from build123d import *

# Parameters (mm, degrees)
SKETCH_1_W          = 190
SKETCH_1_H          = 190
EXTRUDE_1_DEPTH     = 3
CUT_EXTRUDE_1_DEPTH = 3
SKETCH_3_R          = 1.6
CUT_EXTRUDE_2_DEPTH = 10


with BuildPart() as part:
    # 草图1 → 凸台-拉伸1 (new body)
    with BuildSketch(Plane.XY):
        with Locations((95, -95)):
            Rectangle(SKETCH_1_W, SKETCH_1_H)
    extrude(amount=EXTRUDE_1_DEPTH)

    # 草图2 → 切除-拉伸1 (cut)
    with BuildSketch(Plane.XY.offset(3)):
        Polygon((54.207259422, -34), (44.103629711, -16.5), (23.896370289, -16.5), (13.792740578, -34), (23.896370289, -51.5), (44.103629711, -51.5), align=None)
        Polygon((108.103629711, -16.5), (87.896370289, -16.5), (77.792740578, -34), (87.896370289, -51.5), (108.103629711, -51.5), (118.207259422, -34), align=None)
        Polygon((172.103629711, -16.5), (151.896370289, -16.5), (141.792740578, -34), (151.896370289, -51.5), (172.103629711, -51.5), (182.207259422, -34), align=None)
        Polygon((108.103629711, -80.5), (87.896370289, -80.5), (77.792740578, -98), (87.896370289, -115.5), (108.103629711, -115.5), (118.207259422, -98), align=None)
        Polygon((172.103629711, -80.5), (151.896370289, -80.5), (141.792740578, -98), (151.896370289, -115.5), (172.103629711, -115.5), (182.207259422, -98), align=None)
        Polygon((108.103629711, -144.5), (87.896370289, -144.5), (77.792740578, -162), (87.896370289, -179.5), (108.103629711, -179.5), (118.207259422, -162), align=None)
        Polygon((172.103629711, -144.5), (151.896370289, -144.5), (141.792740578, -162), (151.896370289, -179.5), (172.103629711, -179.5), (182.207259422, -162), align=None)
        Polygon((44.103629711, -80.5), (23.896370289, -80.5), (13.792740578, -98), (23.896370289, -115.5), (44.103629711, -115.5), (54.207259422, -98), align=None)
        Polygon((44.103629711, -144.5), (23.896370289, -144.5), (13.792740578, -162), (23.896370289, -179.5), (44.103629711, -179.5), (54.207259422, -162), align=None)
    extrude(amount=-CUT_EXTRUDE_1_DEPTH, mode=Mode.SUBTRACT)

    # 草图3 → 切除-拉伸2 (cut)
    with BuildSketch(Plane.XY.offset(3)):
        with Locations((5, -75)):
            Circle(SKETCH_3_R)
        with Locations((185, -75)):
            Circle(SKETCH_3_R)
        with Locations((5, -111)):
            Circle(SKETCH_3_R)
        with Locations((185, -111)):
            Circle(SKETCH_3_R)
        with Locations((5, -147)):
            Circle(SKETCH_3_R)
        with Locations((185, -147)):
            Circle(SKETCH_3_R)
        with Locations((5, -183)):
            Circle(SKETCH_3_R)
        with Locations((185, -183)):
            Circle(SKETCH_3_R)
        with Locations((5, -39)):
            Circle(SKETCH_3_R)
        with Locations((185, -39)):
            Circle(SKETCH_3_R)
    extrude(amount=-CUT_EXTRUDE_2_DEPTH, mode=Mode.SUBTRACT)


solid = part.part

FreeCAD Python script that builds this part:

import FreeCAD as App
import Part
import Sketcher

V = App.Vector
Q = App.Units.Quantity

doc = App.newDocument("Part")
body = doc.addObject("PartDesign::Body", "Body")

# Sketch on XY plane
sketch1 = doc.addObject("Sketcher::SketchObject", "Sketch")
body.addObject(sketch1)
sketch1.AttachmentSupport = (doc.XY_Plane, [""])
sketch1.MapMode = "FlatFace"
sketch1.addGeometry([
    Part.LineSegment(V(0, 0, 0), V(0, -190, 0)),
    Part.LineSegment(V(0, -190, 0), V(190, -190, 0)),
    Part.LineSegment(V(190, -190, 0), V(190, 0, 0)),
    Part.LineSegment(V(190, 0, 0), V(0, 0, 0)),
], False)
sketch1.addConstraint([
    Sketcher.Constraint("Coincident", 0, 2, 1, 1),
    Sketcher.Constraint("Coincident", 1, 2, 2, 1),
    Sketcher.Constraint("Coincident", 2, 2, 3, 1),
    Sketcher.Constraint("Coincident", 3, 2, 0, 1),
    Sketcher.Constraint("Vertical", 0),
    Sketcher.Constraint("Horizontal", 1),
    Sketcher.Constraint("Vertical", 2),
    Sketcher.Constraint("Horizontal", 3),
    Sketcher.Constraint("Coincident", 3, 2, -1, 1),
    Sketcher.Constraint("Equal", 3, 0),
    Sketcher.Constraint("DistanceX", 1, 1, 1, 2, 190.0),
])
pad1 = doc.addObject("PartDesign::Pad", "Pad")
body.addObject(pad1)
pad1.Profile = sketch1
pad1.Length = 3

# Sketch on XY plane
sketch2 = doc.addObject("Sketcher::SketchObject", "Sketch001")
body.addObject(sketch2)
sketch2.AttachmentSupport = (doc.XY_Plane, [""])
sketch2.MapMode = "FlatFace"
sketch2.AttachmentOffset = App.Placement(V(0, 0, 3), App.Rotation())
sketch2.addGeometry([
    Part.LineSegment(V(54, -34, 0), V(44, -16, 0)),  # 0
    Part.LineSegment(V(44, -16, 0), V(24, -16, 0)),  # 1
    Part.LineSegment(V(24, -16, 0), V(14, -34, 0)),  # 2
    Part.LineSegment(V(14, -34, 0), V(24, -52, 0)),  # 3
    Part.LineSegment(V(24, -52, 0), V(44, -52, 0)),  # 4
    Part.LineSegment(V(44, -52, 0), V(54, -34, 0)),  # 5
    Part.LineSegment(V(108, -16, 0), V(88, -16, 0)),  # 6
    Part.LineSegment(V(88, -16, 0), V(78, -34, 0)),  # 7
    Part.LineSegment(V(78, -34, 0), V(88, -52, 0)),  # 8
    Part.LineSegment(V(88, -52, 0), V(108, -52, 0)),  # 9
    Part.LineSegment(V(108, -52, 0), V(118, -34, 0)),  # 10
    Part.LineSegment(V(118, -34, 0), V(108, -16, 0)),  # 11
    Part.LineSegment(V(172, -16, 0), V(152, -16, 0)),  # 12
    Part.LineSegment(V(152, -16, 0), V(142, -34, 0)),  # 13
    Part.LineSegment(V(142, -34, 0), V(152, -52, 0)),  # 14
    Part.LineSegment(V(152, -52, 0), V(172, -52, 0)),  # 15
    Part.LineSegment(V(172, -52, 0), V(182, -34, 0)),  # 16
    Part.LineSegment(V(182, -34, 0), V(172, -16, 0)),  # 17
    Part.LineSegment(V(108, -80, 0), V(88, -80, 0)),  # 18
    Part.LineSegment(V(88, -80, 0), V(78, -98, 0)),  # 19
    Part.LineSegment(V(78, -98, 0), V(88, -116, 0)),  # 20
    Part.LineSegment(V(88, -116, 0), V(108, -116, 0)),  # 21
    Part.LineSegment(V(108, -116, 0), V(118, -98, 0)),  # 22
    Part.LineSegment(V(118, -98, 0), V(108, -80, 0)),  # 23
    Part.LineSegment(V(172, -80, 0), V(152, -80, 0)),  # 24
    Part.LineSegment(V(152, -80, 0), V(142, -98, 0)),  # 25
    Part.LineSegment(V(142, -98, 0), V(152, -116, 0)),  # 26
    Part.LineSegment(V(152, -116, 0), V(172, -116, 0)),  # 27
    Part.LineSegment(V(172, -116, 0), V(182, -98, 0)),  # 28
    Part.LineSegment(V(182, -98, 0), V(172, -80, 0)),  # 29
    Part.LineSegment(V(108, -144, 0), V(88, -144, 0)),  # 30
    Part.LineSegment(V(88, -144, 0), V(78, -162, 0)),  # 31
    Part.LineSegment(V(78, -162, 0), V(88, -180, 0)),  # 32
    Part.LineSegment(V(88, -180, 0), V(108, -180, 0)),  # 33
    Part.LineSegment(V(108, -180, 0), V(118, -162, 0)),  # 34
    Part.LineSegment(V(118, -162, 0), V(108, -144, 0)),  # 35
    Part.LineSegment(V(172, -144, 0), V(152, -144, 0)),  # 36
    Part.LineSegment(V(152, -144, 0), V(142, -162, 0)),  # 37
    Part.LineSegment(V(142, -162, 0), V(152, -180, 0)),  # 38
    Part.LineSegment(V(152, -180, 0), V(172, -180, 0)),  # 39
    Part.LineSegment(V(172, -180, 0), V(182, -162, 0)),  # 40
    Part.LineSegment(V(182, -162, 0), V(172, -144, 0)),  # 41
    Part.LineSegment(V(44, -80, 0), V(24, -80, 0)),  # 42
    Part.LineSegment(V(24, -80, 0), V(14, -98, 0)),  # 43
    Part.LineSegment(V(14, -98, 0), V(24, -116, 0)),  # 44
    Part.LineSegment(V(24, -116, 0), V(44, -116, 0)),  # 45
    Part.LineSegment(V(44, -116, 0), V(54, -98, 0)),  # 46
    Part.LineSegment(V(54, -98, 0), V(44, -80, 0)),  # 47
    Part.LineSegment(V(44, -144, 0), V(24, -144, 0)),  # 48
    Part.LineSegment(V(24, -144, 0), V(14, -162, 0)),  # 49
    Part.LineSegment(V(14, -162, 0), V(24, -180, 0)),  # 50
    Part.LineSegment(V(24, -180, 0), V(44, -180, 0)),  # 51
    Part.LineSegment(V(44, -180, 0), V(54, -162, 0)),  # 52
    Part.LineSegment(V(54, -162, 0), V(44, -144, 0)),  # 53
], False)
sketch2.addConstraint([
    Sketcher.Constraint("Coincident", 0, 2, 1, 1),
    Sketcher.Constraint("Coincident", 1, 2, 2, 1),
    Sketcher.Constraint("Coincident", 2, 2, 3, 1),
    Sketcher.Constraint("Coincident", 3, 2, 4, 1),
    Sketcher.Constraint("Coincident", 4, 2, 5, 1),
    Sketcher.Constraint("Coincident", 5, 2, 0, 1),
    Sketcher.Constraint("Coincident", 6, 2, 7, 1),
    Sketcher.Constraint("Coincident", 7, 2, 8, 1),
    Sketcher.Constraint("Coincident", 8, 2, 9, 1),
    Sketcher.Constraint("Coincident", 9, 2, 10, 1),
    Sketcher.Constraint("Coincident", 10, 2, 11, 1),
    Sketcher.Constraint("Coincident", 11, 2, 6, 1),
    Sketcher.Constraint("Coincident", 12, 2, 13, 1),
    Sketcher.Constraint("Coincident", 13, 2, 14, 1),
    Sketcher.Constraint("Coincident", 14, 2, 15, 1),
    Sketcher.Constraint("Coincident", 15, 2, 16, 1),
    Sketcher.Constraint("Coincident", 16, 2, 17, 1),
    Sketcher.Constraint("Coincident", 17, 2, 12, 1),
    Sketcher.Constraint("Coincident", 18, 2, 19, 1),
    Sketcher.Constraint("Coincident", 19, 2, 20, 1),
    Sketcher.Constraint("Coincident", 20, 2, 21, 1),
    Sketcher.Constraint("Coincident", 21, 2, 22, 1),
    Sketcher.Constraint("Coincident", 22, 2, 23, 1),
    Sketcher.Constraint("Coincident", 23, 2, 18, 1),
    Sketcher.Constraint("Coincident", 24, 2, 25, 1),
    Sketcher.Constraint("Coincident", 25, 2, 26, 1),
    Sketcher.Constraint("Coincident", 26, 2, 27, 1),
    Sketcher.Constraint("Coincident", 27, 2, 28, 1),
    Sketcher.Constraint("Coincident", 28, 2, 29, 1),
    Sketcher.Constraint("Coincident", 29, 2, 24, 1),
    Sketcher.Constraint("Coincident", 30, 2, 31, 1),
    Sketcher.Constraint("Coincident", 31, 2, 32, 1),
    Sketcher.Constraint("Coincident", 32, 2, 33, 1),
    Sketcher.Constraint("Coincident", 33, 2, 34, 1),
    Sketcher.Constraint("Coincident", 34, 2, 35, 1),
    Sketcher.Constraint("Coincident", 35, 2, 30, 1),
    Sketcher.Constraint("Coincident", 36, 2, 37, 1),
    Sketcher.Constraint("Coincident", 37, 2, 38, 1),
    Sketcher.Constraint("Coincident", 38, 2, 39, 1),
    Sketcher.Constraint("Coincident", 39, 2, 40, 1),
    Sketcher.Constraint("Coincident", 40, 2, 41, 1),
    Sketcher.Constraint("Coincident", 41, 2, 36, 1),
    Sketcher.Constraint("Coincident", 42, 2, 43, 1),
    Sketcher.Constraint("Coincident", 43, 2, 44, 1),
    Sketcher.Constraint("Coincident", 44, 2, 45, 1),
    Sketcher.Constraint("Coincident", 45, 2, 46, 1),
    Sketcher.Constraint("Coincident", 46, 2, 47, 1),
    Sketcher.Constraint("Coincident", 47, 2, 42, 1),
    Sketcher.Constraint("Coincident", 48, 2, 49, 1),
    Sketcher.Constraint("Coincident", 49, 2, 50, 1),
    Sketcher.Constraint("Coincident", 50, 2, 51, 1),
    Sketcher.Constraint("Coincident", 51, 2, 52, 1),
    Sketcher.Constraint("Coincident", 52, 2, 53, 1),
    Sketcher.Constraint("Coincident", 53, 2, 48, 1),
    Sketcher.Constraint("Horizontal", 1),
    Sketcher.Constraint("Horizontal", 4),
    Sketcher.Constraint("Horizontal", 6),
    Sketcher.Constraint("Horizontal", 9),
    Sketcher.Constraint("Horizontal", 12),
    Sketcher.Constraint("Horizontal", 15),
    Sketcher.Constraint("Horizontal", 18),
    Sketcher.Constraint("Horizontal", 21),
    Sketcher.Constraint("Horizontal", 24),
    Sketcher.Constraint("Horizontal", 27),
    Sketcher.Constraint("Horizontal", 30),
    Sketcher.Constraint("Horizontal", 33),
    Sketcher.Constraint("Horizontal", 36),
    Sketcher.Constraint("Horizontal", 39),
    Sketcher.Constraint("Horizontal", 42),
    Sketcher.Constraint("Horizontal", 45),
    Sketcher.Constraint("Horizontal", 48),
    Sketcher.Constraint("Horizontal", 51),
    Sketcher.Constraint("Parallel", 0, 3),
    Sketcher.Constraint("Parallel", 2, 5),
    Sketcher.Constraint("Parallel", 5, 7),
    Sketcher.Constraint("Parallel", 3, 8),
    Sketcher.Constraint("Parallel", 7, 10),
    Sketcher.Constraint("Parallel", 8, 11),
    Sketcher.Constraint("Parallel", 10, 13),
    Sketcher.Constraint("Parallel", 11, 14),
    Sketcher.Constraint("Parallel", 13, 16),
    Sketcher.Constraint("Parallel", 14, 17),
    Sketcher.Constraint("Parallel", 16, 19),
    Sketcher.Constraint("Parallel", 17, 20),
    Sketcher.Constraint("Parallel", 19, 22),
    Sketcher.Constraint("Parallel", 20, 23),
    Sketcher.Constraint("Parallel", 22, 25),
    Sketcher.Constraint("Parallel", 23, 26),
    Sketcher.Constraint("Parallel", 25, 28),
    Sketcher.Constraint("Parallel", 26, 29),
    Sketcher.Constraint("Parallel", 28, 31),
    Sketcher.Constraint("Parallel", 29, 32),
    Sketcher.Constraint("Parallel", 31, 34),
    Sketcher.Constraint("Parallel", 32, 35),
    Sketcher.Constraint("Parallel", 34, 37),
    Sketcher.Constraint("Parallel", 35, 38),
    Sketcher.Constraint("Parallel", 37, 40),
    Sketcher.Constraint("Parallel", 38, 41),
    Sketcher.Constraint("Parallel", 40, 43),
    Sketcher.Constraint("Parallel", 41, 44),
    Sketcher.Constraint("Parallel", 43, 46),
    Sketcher.Constraint("Parallel", 44, 47),
    Sketcher.Constraint("Parallel", 46, 49),
    Sketcher.Constraint("Parallel", 47, 50),
    Sketcher.Constraint("Parallel", 49, 52),
    Sketcher.Constraint("Parallel", 50, 53),
    Sketcher.Constraint("Horizontal", 2, 2, 5, 2),
    Sketcher.Constraint("Horizontal", 1, 2, 6, 2),
    Sketcher.Constraint("Horizontal", 5, 2, 7, 2),
    Sketcher.Constraint("Horizontal", 4, 2, 8, 2),
    Sketcher.Constraint("Horizontal", 7, 2, 10, 2),
    Sketcher.Constraint("Horizontal", 11, 2, 12, 2),
    Sketcher.Constraint("Horizontal", 10, 2, 13, 2),
    Sketcher.Constraint("Horizontal", 9, 2, 14, 2),
    Sketcher.Constraint("Horizontal", 13, 2, 16, 2),
    Sketcher.Constraint("Horizontal", 19, 2, 22, 2),
    Sketcher.Constraint("Horizontal", 23, 2, 24, 2),
    Sketcher.Constraint("Horizontal", 22, 2, 25, 2),
    Sketcher.Constraint("Horizontal", 21, 2, 26, 2),
    Sketcher.Constraint("Horizontal", 25, 2, 28, 2),
    Sketcher.Constraint("Horizontal", 31, 2, 34, 2),
    Sketcher.Constraint("Horizontal", 35, 2, 36, 2),
    Sketcher.Constraint("Horizontal", 34, 2, 37, 2),
    Sketcher.Constraint("Horizontal", 33, 2, 38, 2),
    Sketcher.Constraint("Horizontal", 37, 2, 40, 2),
    Sketcher.Constraint("Horizontal", 29, 2, 42, 2),
    Sketcher.Constraint("Horizontal", 28, 2, 43, 2),
    Sketcher.Constraint("Horizontal", 27, 2, 44, 2),
    Sketcher.Constraint("Horizontal", 43, 2, 46, 2),
    Sketcher.Constraint("Horizontal", 41, 2, 48, 2),
    Sketcher.Constraint("Horizontal", 40, 2, 49, 2),
    Sketcher.Constraint("Horizontal", 39, 2, 50, 2),
    Sketcher.Constraint("Horizontal", 49, 2, 52, 2),
    Sketcher.Constraint("Vertical", 1, 2, 3, 2),
    Sketcher.Constraint("Vertical", 0, 2, 4, 2),
    Sketcher.Constraint("Vertical", 8, 2, 18, 2),
    Sketcher.Constraint("Vertical", 7, 2, 19, 2),
    Sketcher.Constraint("Vertical", 18, 2, 20, 2),
    Sketcher.Constraint("Vertical", 11, 2, 21, 2),
    Sketcher.Constraint("Vertical", 14, 2, 24, 2),
    Sketcher.Constraint("Vertical", 17, 2, 27, 2),
    Sketcher.Constraint("Vertical", 20, 2, 30, 2),
    Sketcher.Constraint("Vertical", 19, 2, 31, 2),
    Sketcher.Constraint("Vertical", 30, 2, 32, 2),
    Sketcher.Constraint("Vertical", 23, 2, 33, 2),
    Sketcher.Constraint("Vertical", 26, 2, 36, 2),
    Sketcher.Constraint("Vertical", 29, 2, 39, 2),
    Sketcher.Constraint("Vertical", 3, 2, 42, 2),
    Sketcher.Constraint("Vertical", 4, 2, 45, 2),
    Sketcher.Constraint("Vertical", 44, 2, 48, 2),
    Sketcher.Constraint("Vertical", 47, 2, 51, 2),
    Sketcher.Constraint("Equal", 4, 6),
    Sketcher.Constraint("Equal", 9, 12),
    Sketcher.Constraint("Angle", 0, Q("120 deg")),
    Sketcher.Constraint("DistanceY", 2, 2, -1, 1, 34.0),
    Sketcher.Constraint("DistanceY", 19, 2, -1, 1, 98.0),
    Sketcher.Constraint("DistanceY", 31, 2, -1, 1, 162.0),
    Sketcher.Constraint("DistanceY", 3, 2, 1, 2, 35.0),
    Sketcher.Constraint("DistanceX", 1, 2, 6, 2, 64.0),
    Sketcher.Constraint("DistanceX", 6, 2, 12, 2, 64.0),
    Sketcher.Constraint("DistanceX", 1, 2, 1, 1, 20.207259),
    Sketcher.Constraint("DistanceX", -1, 1, 0, 2, 44.10363),
])
pocket1 = doc.addObject("PartDesign::Pocket", "Pocket")
body.addObject(pocket1)
pocket1.Profile = sketch2
pocket1.Length = 3

# Sketch on XY plane
sketch3 = doc.addObject("Sketcher::SketchObject", "Sketch002")
body.addObject(sketch3)
sketch3.AttachmentSupport = (doc.XY_Plane, [""])
sketch3.MapMode = "FlatFace"
sketch3.AttachmentOffset = App.Placement(V(0, 0, 3), App.Rotation())
sketch3.addGeometry([
    Part.Circle(V(5, -75, 0), V(0, 0, 1), 1.6),  # 0
    Part.Circle(V(185, -75, 0), V(0, 0, 1), 1.6),  # 1
    Part.Circle(V(5, -111, 0), V(0, 0, 1), 1.6),  # 2
    Part.Circle(V(185, -111, 0), V(0, 0, 1), 1.6),  # 3
    Part.Circle(V(5, -147, 0), V(0, 0, 1), 1.6),  # 4
    Part.Circle(V(185, -147, 0), V(0, 0, 1), 1.6),  # 5
    Part.Circle(V(5, -183, 0), V(0, 0, 1), 1.6),  # 6
    Part.Circle(V(185, -183, 0), V(0, 0, 1), 1.6),  # 7
    Part.Circle(V(5, -39, 0), V(0, 0, 1), 1.6),  # 8
    Part.Circle(V(185, -39, 0), V(0, 0, 1), 1.6),  # 9
], False)
sketch3.addConstraint([
    Sketcher.Constraint("Equal", 0, 1),
    Sketcher.Constraint("Equal", 1, 2),
    Sketcher.Constraint("Equal", 2, 3),
    Sketcher.Constraint("Equal", 3, 4),
    Sketcher.Constraint("Equal", 4, 5),
    Sketcher.Constraint("Equal", 5, 6),
    Sketcher.Constraint("Equal", 6, 7),
    Sketcher.Constraint("Equal", 7, 8),
    Sketcher.Constraint("Equal", 8, 9),
    Sketcher.Constraint("Horizontal", 0, 3, 1, 3),
    Sketcher.Constraint("Horizontal", 2, 3, 3, 3),
    Sketcher.Constraint("Horizontal", 4, 3, 5, 3),
    Sketcher.Constraint("Horizontal", 6, 3, 7, 3),
    Sketcher.Constraint("Horizontal", 8, 3, 9, 3),
    Sketcher.Constraint("Vertical", 0, 3, 2, 3),
    Sketcher.Constraint("Vertical", 1, 3, 3, 3),
    Sketcher.Constraint("Vertical", 2, 3, 4, 3),
    Sketcher.Constraint("Vertical", 3, 3, 5, 3),
    Sketcher.Constraint("Vertical", 4, 3, 6, 3),
    Sketcher.Constraint("Vertical", 5, 3, 7, 3),
    Sketcher.Constraint("Vertical", 6, 3, 8, 3),
    Sketcher.Constraint("Vertical", 7, 3, 9, 3),
    Sketcher.Constraint("Diameter", 0, 3.2),
    Sketcher.Constraint("DistanceX", -1, 1, 0, 3, 5.0),
    Sketcher.Constraint("DistanceY", 0, 3, -1, 1, 75.0),
    Sketcher.Constraint("DistanceX", -1, 1, 1, 3, 185.0),
    Sketcher.Constraint("DistanceY", 2, 3, -1, 1, 111.0),
    Sketcher.Constraint("DistanceY", 4, 3, -1, 1, 147.0),
    Sketcher.Constraint("DistanceY", 6, 3, -1, 1, 183.0),
    Sketcher.Constraint("DistanceY", 8, 3, -1, 1, 39.0),
])
pocket2 = doc.addObject("PartDesign::Pocket", "Pocket001")
body.addObject(pocket2)
pocket2.Profile = sketch3
pocket2.Length = 10

doc.recompute()
